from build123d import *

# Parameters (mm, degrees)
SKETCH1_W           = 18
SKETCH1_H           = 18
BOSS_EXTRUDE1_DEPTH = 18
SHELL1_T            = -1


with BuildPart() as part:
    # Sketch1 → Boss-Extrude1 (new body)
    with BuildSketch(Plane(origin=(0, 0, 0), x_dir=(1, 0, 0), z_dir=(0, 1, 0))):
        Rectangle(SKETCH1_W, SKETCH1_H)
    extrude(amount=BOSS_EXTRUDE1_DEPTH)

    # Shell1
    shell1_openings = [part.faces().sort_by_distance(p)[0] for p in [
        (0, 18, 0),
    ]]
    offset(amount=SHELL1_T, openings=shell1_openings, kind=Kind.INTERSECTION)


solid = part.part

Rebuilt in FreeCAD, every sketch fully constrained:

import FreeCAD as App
import Part
import Sketcher


def faces_at(feature, points):
    """Names of the faces that lie closest to the given points."""
    faces = feature.Shape.Faces
    near = lambda p: min(range(len(faces)), key=lambda i: faces[i].distToShape(Part.Vertex(*p))[0])
    return sorted({f"Face{near(p) + 1}" for p in points})

doc = App.newDocument("Part")
body = doc.addObject("PartDesign::Body", "Body")

# Sketch on XZ plane
sketch1 = doc.addObject("Sketcher::SketchObject", "Sketch")
body.addObject(sketch1)
sketch1.AttachmentSupport = (doc.XZ_Plane, [""])
sketch1.MapMode = "FlatFace"
sketch1.addGeometry(Part.LineSegment(App.Vector(-9, -9, 0), App.Vector(-9, 9, 0)), False)
sketch1.addGeometry(Part.LineSegment(App.Vector(-9, 9, 0), App.Vector(9, 9, 0)), False)
sketch1.addGeometry(Part.LineSegment(App.Vector(9, 9, 0), App.Vector(9, -9, 0)), False)
sketch1.addGeometry(Part.LineSegment(App.Vector(9, -9, 0), App.Vector(-9, -9, 0)), False)
sketch1.addConstraint(Sketcher.Constraint("Coincident", 0, 2, 1, 1))
sketch1.addConstraint(Sketcher.Constraint("Coincident", 1, 2, 2, 1))
sketch1.addConstraint(Sketcher.Constraint("Coincident", 2, 2, 3, 1))
sketch1.addConstraint(Sketcher.Constraint("Coincident", 3, 2, 0, 1))
sketch1.addConstraint(Sketcher.Constraint("Vertical", 0))
sketch1.addConstraint(Sketcher.Constraint("Horizontal", 1))
sketch1.addConstraint(Sketcher.Constraint("Vertical", 2))
sketch1.addConstraint(Sketcher.Constraint("Horizontal", 3))
sketch1.addConstraint(Sketcher.Constraint("Symmetric", 0, 2, 2, 2, -1, 1))
sketch1.addConstraint(Sketcher.Constraint("Equal", 3, 0))
sketch1.addConstraint(Sketcher.Constraint("DistanceX", 1, 1, 1, 2, 18.0))
pad1 = doc.addObject("PartDesign::Pad", "Pad")
body.addObject(pad1)
pad1.Profile = sketch1
pad1.Length = 18
pad1.Reversed = True
doc.recompute()

thickness = doc.addObject("PartDesign::Thickness", "Thickness")
body.addObject(thickness)
thickness.Base = (pad1, faces_at(pad1, [(0, 18, 0)]))
thickness.Value = 1
thickness.Reversed = True
thickness.Join = "Intersection"

doc.recompute()
